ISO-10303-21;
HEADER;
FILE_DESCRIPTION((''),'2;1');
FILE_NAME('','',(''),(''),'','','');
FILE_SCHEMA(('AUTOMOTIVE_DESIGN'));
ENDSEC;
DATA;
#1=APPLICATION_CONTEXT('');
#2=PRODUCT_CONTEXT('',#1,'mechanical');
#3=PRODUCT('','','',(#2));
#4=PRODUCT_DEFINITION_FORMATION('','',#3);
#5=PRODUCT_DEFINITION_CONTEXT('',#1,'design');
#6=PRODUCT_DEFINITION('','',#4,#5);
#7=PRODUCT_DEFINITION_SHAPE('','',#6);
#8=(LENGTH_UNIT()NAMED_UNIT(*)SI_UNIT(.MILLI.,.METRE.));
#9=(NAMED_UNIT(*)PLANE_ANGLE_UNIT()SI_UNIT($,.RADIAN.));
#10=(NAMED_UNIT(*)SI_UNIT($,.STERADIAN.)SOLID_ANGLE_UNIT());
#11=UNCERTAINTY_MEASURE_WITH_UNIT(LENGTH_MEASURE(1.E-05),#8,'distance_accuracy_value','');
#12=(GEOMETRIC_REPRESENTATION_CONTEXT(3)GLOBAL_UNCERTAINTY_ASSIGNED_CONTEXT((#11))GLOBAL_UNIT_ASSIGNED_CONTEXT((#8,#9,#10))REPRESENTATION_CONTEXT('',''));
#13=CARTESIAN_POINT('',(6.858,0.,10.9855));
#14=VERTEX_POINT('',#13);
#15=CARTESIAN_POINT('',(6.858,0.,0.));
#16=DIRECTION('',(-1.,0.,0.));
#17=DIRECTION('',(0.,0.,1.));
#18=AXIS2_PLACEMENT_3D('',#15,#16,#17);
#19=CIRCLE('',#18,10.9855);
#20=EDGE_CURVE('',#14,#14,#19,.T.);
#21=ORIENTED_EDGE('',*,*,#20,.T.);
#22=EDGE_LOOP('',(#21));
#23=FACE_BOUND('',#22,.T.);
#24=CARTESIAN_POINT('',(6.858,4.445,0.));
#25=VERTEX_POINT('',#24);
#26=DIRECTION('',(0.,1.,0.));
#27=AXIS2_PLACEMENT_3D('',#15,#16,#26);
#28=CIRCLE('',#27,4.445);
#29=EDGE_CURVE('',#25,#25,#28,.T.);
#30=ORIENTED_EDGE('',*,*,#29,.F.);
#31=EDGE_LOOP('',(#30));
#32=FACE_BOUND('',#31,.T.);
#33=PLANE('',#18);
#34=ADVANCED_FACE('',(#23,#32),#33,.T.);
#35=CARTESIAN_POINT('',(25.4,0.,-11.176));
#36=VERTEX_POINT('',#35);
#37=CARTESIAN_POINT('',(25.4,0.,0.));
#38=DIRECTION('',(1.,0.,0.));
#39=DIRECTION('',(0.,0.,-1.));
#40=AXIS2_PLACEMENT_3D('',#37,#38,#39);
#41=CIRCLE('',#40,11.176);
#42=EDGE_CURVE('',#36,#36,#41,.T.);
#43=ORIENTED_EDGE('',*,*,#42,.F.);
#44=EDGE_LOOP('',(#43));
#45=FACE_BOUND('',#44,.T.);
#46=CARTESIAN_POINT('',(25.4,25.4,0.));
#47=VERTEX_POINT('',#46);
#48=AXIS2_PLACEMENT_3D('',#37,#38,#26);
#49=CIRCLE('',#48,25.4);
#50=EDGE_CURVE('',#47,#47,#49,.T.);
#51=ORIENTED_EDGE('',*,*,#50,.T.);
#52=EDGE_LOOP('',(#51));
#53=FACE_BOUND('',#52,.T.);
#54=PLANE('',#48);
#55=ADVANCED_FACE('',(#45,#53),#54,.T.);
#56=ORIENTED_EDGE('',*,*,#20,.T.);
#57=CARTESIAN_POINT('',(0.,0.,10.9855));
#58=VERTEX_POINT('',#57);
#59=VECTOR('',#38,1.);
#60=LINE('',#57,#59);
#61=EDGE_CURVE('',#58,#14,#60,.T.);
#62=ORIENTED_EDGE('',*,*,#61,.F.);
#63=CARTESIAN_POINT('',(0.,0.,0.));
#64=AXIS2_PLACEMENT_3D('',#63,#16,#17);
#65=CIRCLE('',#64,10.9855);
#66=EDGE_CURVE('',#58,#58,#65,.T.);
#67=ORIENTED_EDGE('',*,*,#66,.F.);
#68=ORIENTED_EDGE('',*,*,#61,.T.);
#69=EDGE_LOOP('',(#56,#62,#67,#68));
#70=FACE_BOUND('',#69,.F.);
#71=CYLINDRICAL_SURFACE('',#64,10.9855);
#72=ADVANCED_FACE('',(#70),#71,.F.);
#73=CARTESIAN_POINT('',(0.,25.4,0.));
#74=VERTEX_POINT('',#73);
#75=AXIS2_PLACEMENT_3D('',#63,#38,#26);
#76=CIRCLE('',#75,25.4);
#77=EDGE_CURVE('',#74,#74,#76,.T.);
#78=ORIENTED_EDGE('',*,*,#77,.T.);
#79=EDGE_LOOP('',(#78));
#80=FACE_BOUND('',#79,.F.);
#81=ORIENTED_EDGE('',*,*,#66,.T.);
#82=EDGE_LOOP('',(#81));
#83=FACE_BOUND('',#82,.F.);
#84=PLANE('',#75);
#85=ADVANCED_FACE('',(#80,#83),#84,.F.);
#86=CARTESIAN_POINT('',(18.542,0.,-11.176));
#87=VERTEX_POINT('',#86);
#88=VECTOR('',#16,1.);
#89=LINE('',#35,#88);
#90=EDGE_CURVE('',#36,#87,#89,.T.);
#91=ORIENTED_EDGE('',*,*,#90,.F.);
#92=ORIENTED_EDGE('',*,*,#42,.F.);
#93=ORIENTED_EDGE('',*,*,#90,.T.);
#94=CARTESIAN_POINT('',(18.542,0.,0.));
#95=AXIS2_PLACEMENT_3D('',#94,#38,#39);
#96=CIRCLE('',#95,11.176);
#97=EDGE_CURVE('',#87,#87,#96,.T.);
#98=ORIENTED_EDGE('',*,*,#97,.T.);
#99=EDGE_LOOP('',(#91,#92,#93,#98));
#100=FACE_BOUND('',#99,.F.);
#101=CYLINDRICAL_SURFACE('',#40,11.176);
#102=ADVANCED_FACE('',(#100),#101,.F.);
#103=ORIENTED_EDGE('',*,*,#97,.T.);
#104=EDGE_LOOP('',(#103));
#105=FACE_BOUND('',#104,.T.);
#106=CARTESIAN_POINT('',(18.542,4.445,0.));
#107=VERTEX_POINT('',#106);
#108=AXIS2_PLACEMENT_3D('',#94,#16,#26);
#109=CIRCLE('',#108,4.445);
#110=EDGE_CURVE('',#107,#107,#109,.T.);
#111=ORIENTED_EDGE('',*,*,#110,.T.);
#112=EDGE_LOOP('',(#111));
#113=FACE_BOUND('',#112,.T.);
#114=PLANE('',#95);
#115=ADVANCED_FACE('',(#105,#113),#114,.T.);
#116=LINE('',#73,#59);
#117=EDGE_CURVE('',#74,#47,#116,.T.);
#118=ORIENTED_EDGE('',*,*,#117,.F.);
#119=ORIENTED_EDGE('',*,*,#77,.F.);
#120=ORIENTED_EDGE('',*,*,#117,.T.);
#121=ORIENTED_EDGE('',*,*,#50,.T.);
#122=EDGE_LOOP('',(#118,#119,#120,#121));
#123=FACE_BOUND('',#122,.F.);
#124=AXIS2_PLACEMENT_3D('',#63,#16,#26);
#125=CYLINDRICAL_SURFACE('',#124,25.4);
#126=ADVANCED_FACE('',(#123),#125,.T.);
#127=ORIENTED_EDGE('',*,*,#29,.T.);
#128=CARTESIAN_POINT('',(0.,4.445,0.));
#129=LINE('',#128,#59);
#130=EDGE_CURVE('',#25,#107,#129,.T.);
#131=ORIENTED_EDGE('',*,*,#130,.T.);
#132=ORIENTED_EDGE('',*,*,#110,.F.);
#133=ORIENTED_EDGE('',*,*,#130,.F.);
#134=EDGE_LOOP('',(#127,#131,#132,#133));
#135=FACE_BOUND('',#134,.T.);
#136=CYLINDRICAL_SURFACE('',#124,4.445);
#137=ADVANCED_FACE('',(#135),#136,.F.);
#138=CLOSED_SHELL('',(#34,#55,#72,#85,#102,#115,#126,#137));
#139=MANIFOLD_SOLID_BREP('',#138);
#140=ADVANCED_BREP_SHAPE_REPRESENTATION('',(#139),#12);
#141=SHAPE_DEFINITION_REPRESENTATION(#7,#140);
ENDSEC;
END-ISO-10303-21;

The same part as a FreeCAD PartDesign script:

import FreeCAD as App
import Part
import Sketcher
from FreeCAD import Vector
Q = App.Units.Quantity

doc = App.newDocument("Part")
body = doc.addObject("PartDesign::Body", "Body")

# Sketch on YZ plane
sketch1 = body.newObject("Sketcher::SketchObject", "Sketch")
sketch1.AttachmentSupport = (doc.getObject("YZ_Plane"), [""])
sketch1.MapMode = "FlatFace"
sketch1.addGeometry([
    Part.Circle(Vector(0, 0, 0), Vector(0, 0, 1), 25.4),
    Part.Circle(Vector(0, 0, 0), Vector(0, 0, 1), 4.445),
], False)
sketch1.addConstraint([
    Sketcher.Constraint("Coincident", 0, 3, -1, 1),
    Sketcher.Constraint("Coincident", 1, 3, -1, 1),
    Sketcher.Constraint("Diameter", 1, Q("0.35 in")),
    Sketcher.Constraint("Diameter", 0, Q("2 in")),
])
pad1 = body.newObject("PartDesign::Pad", "Pad")
pad1.Profile = sketch1
pad1.Length = Q("1 in")

# Sketch on YZ plane
sketch2 = body.newObject("Sketcher::SketchObject", "Sketch001")
sketch2.AttachmentSupport = (doc.getObject("YZ_Plane"), [""])
sketch2.MapMode = "FlatFace"
sketch2.addGeometry(Part.Circle(Vector(0, 0, 0), Vector(0, 0, 1), 10.9855), False)
sketch2.addConstraint([
    Sketcher.Constraint("Coincident", 0, 3, -1, 1),
    Sketcher.Constraint("Diameter", 0, Q("0.865 in")),
])
pocket1 = body.newObject("PartDesign::Pocket", "Pocket")
pocket1.Profile = sketch2
pocket1.Length = Q("0.27 in")
pocket1.Reversed = True

# Sketch on YZ plane
sketch3 = body.newObject("Sketcher::SketchObject", "Sketch002")
sketch3.AttachmentSupport = (doc.getObject("YZ_Plane"), [""])
sketch3.MapMode = "FlatFace"
sketch3.AttachmentOffset = App.Placement(Vector(0, 0, 1 * 25.4), App.Rotation())
sketch3.addGeometry(Part.Circle(Vector(0, 0, 0), Vector(0, 0, 1), 10.9855), False)
sketch3.addConstraint([
    Sketcher.Constraint("Coincident", 0, 3, -1, 1),
    Sketcher.Constraint("Diameter", 0, Q("0.865 in")),
])
pocket2 = body.newObject("PartDesign::Pocket", "Pocket001")
pocket2.Profile = sketch3
pocket2.Length = Q("0.27 in")

# Sketch on YZ plane
sketch4 = body.newObject("Sketcher::SketchObject", "Sketch003")
sketch4.AttachmentSupport = (doc.getObject("YZ_Plane"), [""])
sketch4.MapMode = "FlatFace"
sketch4.AttachmentOffset = App.Placement(Vector(0, 0, 1 * 25.4), App.Rotation())
sketch4.addGeometry([
    Part.Circle(Vector(0, 0, 0), Vector(0, 0, 1), 11.176),
    Part.Circle(Vector(0, 0, 0), Vector(0, 0, 1), 4.445),
], False)
sketch4.addConstraint([
    Sketcher.Constraint("Coincident", 0, 3, -1, 1),
    Sketcher.Constraint("Coincident", 1, 3, -1, 1),
    Sketcher.Constraint("Diameter", 0, Q("0.88 in")),
    Sketcher.Constraint("Diameter", 1, Q("0.35 in")),
])
pocket3 = body.newObject("PartDesign::Pocket", "Pocket002")
pocket3.Profile = sketch4
pocket3.Length = Q("0.27 in")

doc.recompute()
